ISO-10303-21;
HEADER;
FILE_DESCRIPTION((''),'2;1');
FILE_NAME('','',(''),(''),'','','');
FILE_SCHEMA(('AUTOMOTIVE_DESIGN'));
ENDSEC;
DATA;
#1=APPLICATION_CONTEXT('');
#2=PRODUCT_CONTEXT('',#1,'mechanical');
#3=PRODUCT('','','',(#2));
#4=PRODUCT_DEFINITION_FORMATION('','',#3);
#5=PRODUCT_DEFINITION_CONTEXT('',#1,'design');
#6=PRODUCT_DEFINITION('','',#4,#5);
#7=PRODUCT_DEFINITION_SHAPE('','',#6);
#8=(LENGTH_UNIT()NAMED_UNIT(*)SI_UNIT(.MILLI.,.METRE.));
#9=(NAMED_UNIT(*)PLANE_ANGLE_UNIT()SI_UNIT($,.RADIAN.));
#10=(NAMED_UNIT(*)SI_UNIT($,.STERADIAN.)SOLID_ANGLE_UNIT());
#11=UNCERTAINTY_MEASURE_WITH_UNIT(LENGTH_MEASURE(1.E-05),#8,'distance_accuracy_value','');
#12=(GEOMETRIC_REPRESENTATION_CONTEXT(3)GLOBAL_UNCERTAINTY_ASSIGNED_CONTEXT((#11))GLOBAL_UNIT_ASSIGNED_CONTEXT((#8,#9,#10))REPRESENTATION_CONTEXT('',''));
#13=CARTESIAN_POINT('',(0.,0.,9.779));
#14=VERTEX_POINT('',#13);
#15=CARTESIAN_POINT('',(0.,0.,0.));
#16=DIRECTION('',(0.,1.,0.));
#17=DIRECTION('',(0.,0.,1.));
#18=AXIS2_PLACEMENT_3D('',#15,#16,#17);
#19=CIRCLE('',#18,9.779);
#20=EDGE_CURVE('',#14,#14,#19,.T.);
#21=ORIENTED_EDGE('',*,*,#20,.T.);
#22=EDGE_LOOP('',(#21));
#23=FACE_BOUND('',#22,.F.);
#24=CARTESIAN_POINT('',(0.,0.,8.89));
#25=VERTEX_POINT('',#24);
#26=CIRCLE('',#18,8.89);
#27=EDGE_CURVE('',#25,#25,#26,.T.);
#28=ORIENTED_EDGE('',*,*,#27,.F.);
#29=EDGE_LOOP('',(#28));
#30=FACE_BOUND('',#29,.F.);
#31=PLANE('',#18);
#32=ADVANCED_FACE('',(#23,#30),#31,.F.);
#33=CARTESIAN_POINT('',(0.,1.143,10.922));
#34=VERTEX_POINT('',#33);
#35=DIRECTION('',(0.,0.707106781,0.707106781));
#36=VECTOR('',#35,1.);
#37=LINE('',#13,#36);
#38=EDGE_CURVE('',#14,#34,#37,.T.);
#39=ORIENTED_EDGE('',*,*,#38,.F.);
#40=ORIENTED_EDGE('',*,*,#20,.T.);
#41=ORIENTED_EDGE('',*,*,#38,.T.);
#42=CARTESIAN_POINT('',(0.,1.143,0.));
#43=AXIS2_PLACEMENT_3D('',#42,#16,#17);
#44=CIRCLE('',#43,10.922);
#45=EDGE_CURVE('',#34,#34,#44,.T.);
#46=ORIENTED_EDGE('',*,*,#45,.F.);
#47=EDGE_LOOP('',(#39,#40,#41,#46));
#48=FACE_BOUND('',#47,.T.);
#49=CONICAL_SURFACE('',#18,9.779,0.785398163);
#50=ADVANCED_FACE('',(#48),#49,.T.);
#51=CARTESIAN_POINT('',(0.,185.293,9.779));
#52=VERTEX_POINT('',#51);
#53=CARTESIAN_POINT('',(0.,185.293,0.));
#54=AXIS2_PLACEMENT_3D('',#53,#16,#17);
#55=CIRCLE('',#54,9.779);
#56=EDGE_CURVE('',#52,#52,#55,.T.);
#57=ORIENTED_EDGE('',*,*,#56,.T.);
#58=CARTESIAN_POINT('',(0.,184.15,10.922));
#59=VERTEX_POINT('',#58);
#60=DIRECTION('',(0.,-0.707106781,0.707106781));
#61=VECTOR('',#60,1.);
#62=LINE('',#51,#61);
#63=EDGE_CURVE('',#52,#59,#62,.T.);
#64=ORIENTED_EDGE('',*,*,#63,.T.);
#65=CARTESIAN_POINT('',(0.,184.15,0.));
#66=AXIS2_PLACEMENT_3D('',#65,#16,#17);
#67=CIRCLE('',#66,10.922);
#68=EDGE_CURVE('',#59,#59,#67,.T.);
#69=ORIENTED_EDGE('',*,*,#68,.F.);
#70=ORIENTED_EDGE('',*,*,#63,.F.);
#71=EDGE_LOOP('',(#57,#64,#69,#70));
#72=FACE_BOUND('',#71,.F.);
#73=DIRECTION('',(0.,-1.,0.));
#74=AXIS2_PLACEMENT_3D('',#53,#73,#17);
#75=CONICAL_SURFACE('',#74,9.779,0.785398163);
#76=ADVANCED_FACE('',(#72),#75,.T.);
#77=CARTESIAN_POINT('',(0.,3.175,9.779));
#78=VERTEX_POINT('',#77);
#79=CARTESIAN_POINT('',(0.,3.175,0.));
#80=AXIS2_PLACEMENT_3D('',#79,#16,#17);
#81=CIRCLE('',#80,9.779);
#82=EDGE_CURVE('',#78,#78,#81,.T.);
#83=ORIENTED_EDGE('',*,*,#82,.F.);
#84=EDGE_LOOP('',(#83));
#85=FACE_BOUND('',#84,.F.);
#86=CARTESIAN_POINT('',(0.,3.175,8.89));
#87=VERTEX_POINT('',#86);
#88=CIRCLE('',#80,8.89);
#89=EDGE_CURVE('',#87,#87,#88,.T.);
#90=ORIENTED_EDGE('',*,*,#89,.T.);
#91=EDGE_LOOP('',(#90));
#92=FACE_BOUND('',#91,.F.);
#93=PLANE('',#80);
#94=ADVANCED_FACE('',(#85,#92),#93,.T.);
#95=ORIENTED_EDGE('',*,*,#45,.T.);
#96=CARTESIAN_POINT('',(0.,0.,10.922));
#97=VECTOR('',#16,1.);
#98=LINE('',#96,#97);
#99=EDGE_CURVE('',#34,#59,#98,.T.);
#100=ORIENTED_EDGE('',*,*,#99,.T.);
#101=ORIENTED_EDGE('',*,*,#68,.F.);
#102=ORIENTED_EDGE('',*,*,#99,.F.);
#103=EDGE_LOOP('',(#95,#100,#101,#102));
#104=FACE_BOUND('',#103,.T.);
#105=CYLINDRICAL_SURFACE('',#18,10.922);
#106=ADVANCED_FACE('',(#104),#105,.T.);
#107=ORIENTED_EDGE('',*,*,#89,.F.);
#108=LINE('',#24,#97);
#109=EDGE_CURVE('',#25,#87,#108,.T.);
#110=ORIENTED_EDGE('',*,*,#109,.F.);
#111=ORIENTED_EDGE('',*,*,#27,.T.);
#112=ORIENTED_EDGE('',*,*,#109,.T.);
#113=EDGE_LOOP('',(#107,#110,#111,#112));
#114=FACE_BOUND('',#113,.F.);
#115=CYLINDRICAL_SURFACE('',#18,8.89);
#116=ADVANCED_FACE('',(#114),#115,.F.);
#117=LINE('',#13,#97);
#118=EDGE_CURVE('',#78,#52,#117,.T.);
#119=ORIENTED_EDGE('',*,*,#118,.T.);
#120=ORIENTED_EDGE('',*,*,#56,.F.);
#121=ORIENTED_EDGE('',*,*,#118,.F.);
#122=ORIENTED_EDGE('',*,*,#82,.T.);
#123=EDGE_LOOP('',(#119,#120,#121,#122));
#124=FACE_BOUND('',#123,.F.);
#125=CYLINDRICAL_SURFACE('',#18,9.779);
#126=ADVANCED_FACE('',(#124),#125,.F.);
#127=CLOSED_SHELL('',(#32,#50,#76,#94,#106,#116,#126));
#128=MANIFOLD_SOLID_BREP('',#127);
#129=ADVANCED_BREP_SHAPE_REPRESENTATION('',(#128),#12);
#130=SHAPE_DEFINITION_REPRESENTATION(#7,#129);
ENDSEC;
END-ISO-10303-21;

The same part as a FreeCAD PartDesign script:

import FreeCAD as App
import Part
import Sketcher

V = App.Vector
Q = App.Units.Quantity


def add_polygon(sketch, points):
    """Adds a closed chain of lines whose ends are joined by coincident constraints."""
    first, n = sketch.GeometryCount, len(points)
    for a, b in zip(points, points[1:] + points[:1]):
        sketch.addGeometry(Part.LineSegment(App.Vector(*a, 0), App.Vector(*b, 0)), False)
    for i in range(n):
        sketch.addConstraint(Sketcher.Constraint("Coincident", first + i, 2, first + (i + 1) % n, 1))

doc = App.newDocument("Part")
body = doc.addObject("PartDesign::Body", "Body")

# Sketch on YZ plane
sketch1 = body.newObject("Sketcher::SketchObject", "Sketch")
sketch1.AttachmentSupport = (doc.getObject("YZ_Plane"), [""])
sketch1.MapMode = "FlatFace"
add_polygon(sketch1, [(184.2, 10.9), (1.1, 10.9), (0, 9.8), (0, 8.9), (3.2, 8.9), (3.2, 9.8), (185.3, 9.8)])  # lines 0-6
sketch1.addConstraint([
    Sketcher.Constraint("Horizontal", 0),
    Sketcher.Constraint("Vertical", 2),
    Sketcher.Constraint("Horizontal", 3),
    Sketcher.Constraint("Vertical", 4),
    Sketcher.Constraint("Horizontal", 5),
    Sketcher.Constraint("PointOnObject", 1, 2, -2),
    Sketcher.Constraint("Perpendicular", 1, 6),
    Sketcher.Constraint("Horizontal", 1, 2, 4, 2),
    Sketcher.Constraint("Equal", 1, 6),
    Sketcher.Constraint("DistanceX", 3, 1, 3, 2, Q("0.125 in")),
    Sketcher.Constraint("DistanceX", -1, 1, 5, 2, Q("7.295 in")),
    Sketcher.Constraint("DistanceX", 0, 2, 0, 1, Q("7.205 in")),
    Sketcher.Constraint("DistanceY", 2, 2, 2, 1, Q("0.035 in")),
    Sketcher.Constraint("DistanceY", -1, 1, 0, 2, Q("0.43 in")),
])
revolution = body.newObject("PartDesign::Revolution", "Revolution")
revolution.Profile = sketch1
revolution.ReferenceAxis = (sketch1, ["H_Axis"])
revolution.Angle = 360

doc.recompute()
